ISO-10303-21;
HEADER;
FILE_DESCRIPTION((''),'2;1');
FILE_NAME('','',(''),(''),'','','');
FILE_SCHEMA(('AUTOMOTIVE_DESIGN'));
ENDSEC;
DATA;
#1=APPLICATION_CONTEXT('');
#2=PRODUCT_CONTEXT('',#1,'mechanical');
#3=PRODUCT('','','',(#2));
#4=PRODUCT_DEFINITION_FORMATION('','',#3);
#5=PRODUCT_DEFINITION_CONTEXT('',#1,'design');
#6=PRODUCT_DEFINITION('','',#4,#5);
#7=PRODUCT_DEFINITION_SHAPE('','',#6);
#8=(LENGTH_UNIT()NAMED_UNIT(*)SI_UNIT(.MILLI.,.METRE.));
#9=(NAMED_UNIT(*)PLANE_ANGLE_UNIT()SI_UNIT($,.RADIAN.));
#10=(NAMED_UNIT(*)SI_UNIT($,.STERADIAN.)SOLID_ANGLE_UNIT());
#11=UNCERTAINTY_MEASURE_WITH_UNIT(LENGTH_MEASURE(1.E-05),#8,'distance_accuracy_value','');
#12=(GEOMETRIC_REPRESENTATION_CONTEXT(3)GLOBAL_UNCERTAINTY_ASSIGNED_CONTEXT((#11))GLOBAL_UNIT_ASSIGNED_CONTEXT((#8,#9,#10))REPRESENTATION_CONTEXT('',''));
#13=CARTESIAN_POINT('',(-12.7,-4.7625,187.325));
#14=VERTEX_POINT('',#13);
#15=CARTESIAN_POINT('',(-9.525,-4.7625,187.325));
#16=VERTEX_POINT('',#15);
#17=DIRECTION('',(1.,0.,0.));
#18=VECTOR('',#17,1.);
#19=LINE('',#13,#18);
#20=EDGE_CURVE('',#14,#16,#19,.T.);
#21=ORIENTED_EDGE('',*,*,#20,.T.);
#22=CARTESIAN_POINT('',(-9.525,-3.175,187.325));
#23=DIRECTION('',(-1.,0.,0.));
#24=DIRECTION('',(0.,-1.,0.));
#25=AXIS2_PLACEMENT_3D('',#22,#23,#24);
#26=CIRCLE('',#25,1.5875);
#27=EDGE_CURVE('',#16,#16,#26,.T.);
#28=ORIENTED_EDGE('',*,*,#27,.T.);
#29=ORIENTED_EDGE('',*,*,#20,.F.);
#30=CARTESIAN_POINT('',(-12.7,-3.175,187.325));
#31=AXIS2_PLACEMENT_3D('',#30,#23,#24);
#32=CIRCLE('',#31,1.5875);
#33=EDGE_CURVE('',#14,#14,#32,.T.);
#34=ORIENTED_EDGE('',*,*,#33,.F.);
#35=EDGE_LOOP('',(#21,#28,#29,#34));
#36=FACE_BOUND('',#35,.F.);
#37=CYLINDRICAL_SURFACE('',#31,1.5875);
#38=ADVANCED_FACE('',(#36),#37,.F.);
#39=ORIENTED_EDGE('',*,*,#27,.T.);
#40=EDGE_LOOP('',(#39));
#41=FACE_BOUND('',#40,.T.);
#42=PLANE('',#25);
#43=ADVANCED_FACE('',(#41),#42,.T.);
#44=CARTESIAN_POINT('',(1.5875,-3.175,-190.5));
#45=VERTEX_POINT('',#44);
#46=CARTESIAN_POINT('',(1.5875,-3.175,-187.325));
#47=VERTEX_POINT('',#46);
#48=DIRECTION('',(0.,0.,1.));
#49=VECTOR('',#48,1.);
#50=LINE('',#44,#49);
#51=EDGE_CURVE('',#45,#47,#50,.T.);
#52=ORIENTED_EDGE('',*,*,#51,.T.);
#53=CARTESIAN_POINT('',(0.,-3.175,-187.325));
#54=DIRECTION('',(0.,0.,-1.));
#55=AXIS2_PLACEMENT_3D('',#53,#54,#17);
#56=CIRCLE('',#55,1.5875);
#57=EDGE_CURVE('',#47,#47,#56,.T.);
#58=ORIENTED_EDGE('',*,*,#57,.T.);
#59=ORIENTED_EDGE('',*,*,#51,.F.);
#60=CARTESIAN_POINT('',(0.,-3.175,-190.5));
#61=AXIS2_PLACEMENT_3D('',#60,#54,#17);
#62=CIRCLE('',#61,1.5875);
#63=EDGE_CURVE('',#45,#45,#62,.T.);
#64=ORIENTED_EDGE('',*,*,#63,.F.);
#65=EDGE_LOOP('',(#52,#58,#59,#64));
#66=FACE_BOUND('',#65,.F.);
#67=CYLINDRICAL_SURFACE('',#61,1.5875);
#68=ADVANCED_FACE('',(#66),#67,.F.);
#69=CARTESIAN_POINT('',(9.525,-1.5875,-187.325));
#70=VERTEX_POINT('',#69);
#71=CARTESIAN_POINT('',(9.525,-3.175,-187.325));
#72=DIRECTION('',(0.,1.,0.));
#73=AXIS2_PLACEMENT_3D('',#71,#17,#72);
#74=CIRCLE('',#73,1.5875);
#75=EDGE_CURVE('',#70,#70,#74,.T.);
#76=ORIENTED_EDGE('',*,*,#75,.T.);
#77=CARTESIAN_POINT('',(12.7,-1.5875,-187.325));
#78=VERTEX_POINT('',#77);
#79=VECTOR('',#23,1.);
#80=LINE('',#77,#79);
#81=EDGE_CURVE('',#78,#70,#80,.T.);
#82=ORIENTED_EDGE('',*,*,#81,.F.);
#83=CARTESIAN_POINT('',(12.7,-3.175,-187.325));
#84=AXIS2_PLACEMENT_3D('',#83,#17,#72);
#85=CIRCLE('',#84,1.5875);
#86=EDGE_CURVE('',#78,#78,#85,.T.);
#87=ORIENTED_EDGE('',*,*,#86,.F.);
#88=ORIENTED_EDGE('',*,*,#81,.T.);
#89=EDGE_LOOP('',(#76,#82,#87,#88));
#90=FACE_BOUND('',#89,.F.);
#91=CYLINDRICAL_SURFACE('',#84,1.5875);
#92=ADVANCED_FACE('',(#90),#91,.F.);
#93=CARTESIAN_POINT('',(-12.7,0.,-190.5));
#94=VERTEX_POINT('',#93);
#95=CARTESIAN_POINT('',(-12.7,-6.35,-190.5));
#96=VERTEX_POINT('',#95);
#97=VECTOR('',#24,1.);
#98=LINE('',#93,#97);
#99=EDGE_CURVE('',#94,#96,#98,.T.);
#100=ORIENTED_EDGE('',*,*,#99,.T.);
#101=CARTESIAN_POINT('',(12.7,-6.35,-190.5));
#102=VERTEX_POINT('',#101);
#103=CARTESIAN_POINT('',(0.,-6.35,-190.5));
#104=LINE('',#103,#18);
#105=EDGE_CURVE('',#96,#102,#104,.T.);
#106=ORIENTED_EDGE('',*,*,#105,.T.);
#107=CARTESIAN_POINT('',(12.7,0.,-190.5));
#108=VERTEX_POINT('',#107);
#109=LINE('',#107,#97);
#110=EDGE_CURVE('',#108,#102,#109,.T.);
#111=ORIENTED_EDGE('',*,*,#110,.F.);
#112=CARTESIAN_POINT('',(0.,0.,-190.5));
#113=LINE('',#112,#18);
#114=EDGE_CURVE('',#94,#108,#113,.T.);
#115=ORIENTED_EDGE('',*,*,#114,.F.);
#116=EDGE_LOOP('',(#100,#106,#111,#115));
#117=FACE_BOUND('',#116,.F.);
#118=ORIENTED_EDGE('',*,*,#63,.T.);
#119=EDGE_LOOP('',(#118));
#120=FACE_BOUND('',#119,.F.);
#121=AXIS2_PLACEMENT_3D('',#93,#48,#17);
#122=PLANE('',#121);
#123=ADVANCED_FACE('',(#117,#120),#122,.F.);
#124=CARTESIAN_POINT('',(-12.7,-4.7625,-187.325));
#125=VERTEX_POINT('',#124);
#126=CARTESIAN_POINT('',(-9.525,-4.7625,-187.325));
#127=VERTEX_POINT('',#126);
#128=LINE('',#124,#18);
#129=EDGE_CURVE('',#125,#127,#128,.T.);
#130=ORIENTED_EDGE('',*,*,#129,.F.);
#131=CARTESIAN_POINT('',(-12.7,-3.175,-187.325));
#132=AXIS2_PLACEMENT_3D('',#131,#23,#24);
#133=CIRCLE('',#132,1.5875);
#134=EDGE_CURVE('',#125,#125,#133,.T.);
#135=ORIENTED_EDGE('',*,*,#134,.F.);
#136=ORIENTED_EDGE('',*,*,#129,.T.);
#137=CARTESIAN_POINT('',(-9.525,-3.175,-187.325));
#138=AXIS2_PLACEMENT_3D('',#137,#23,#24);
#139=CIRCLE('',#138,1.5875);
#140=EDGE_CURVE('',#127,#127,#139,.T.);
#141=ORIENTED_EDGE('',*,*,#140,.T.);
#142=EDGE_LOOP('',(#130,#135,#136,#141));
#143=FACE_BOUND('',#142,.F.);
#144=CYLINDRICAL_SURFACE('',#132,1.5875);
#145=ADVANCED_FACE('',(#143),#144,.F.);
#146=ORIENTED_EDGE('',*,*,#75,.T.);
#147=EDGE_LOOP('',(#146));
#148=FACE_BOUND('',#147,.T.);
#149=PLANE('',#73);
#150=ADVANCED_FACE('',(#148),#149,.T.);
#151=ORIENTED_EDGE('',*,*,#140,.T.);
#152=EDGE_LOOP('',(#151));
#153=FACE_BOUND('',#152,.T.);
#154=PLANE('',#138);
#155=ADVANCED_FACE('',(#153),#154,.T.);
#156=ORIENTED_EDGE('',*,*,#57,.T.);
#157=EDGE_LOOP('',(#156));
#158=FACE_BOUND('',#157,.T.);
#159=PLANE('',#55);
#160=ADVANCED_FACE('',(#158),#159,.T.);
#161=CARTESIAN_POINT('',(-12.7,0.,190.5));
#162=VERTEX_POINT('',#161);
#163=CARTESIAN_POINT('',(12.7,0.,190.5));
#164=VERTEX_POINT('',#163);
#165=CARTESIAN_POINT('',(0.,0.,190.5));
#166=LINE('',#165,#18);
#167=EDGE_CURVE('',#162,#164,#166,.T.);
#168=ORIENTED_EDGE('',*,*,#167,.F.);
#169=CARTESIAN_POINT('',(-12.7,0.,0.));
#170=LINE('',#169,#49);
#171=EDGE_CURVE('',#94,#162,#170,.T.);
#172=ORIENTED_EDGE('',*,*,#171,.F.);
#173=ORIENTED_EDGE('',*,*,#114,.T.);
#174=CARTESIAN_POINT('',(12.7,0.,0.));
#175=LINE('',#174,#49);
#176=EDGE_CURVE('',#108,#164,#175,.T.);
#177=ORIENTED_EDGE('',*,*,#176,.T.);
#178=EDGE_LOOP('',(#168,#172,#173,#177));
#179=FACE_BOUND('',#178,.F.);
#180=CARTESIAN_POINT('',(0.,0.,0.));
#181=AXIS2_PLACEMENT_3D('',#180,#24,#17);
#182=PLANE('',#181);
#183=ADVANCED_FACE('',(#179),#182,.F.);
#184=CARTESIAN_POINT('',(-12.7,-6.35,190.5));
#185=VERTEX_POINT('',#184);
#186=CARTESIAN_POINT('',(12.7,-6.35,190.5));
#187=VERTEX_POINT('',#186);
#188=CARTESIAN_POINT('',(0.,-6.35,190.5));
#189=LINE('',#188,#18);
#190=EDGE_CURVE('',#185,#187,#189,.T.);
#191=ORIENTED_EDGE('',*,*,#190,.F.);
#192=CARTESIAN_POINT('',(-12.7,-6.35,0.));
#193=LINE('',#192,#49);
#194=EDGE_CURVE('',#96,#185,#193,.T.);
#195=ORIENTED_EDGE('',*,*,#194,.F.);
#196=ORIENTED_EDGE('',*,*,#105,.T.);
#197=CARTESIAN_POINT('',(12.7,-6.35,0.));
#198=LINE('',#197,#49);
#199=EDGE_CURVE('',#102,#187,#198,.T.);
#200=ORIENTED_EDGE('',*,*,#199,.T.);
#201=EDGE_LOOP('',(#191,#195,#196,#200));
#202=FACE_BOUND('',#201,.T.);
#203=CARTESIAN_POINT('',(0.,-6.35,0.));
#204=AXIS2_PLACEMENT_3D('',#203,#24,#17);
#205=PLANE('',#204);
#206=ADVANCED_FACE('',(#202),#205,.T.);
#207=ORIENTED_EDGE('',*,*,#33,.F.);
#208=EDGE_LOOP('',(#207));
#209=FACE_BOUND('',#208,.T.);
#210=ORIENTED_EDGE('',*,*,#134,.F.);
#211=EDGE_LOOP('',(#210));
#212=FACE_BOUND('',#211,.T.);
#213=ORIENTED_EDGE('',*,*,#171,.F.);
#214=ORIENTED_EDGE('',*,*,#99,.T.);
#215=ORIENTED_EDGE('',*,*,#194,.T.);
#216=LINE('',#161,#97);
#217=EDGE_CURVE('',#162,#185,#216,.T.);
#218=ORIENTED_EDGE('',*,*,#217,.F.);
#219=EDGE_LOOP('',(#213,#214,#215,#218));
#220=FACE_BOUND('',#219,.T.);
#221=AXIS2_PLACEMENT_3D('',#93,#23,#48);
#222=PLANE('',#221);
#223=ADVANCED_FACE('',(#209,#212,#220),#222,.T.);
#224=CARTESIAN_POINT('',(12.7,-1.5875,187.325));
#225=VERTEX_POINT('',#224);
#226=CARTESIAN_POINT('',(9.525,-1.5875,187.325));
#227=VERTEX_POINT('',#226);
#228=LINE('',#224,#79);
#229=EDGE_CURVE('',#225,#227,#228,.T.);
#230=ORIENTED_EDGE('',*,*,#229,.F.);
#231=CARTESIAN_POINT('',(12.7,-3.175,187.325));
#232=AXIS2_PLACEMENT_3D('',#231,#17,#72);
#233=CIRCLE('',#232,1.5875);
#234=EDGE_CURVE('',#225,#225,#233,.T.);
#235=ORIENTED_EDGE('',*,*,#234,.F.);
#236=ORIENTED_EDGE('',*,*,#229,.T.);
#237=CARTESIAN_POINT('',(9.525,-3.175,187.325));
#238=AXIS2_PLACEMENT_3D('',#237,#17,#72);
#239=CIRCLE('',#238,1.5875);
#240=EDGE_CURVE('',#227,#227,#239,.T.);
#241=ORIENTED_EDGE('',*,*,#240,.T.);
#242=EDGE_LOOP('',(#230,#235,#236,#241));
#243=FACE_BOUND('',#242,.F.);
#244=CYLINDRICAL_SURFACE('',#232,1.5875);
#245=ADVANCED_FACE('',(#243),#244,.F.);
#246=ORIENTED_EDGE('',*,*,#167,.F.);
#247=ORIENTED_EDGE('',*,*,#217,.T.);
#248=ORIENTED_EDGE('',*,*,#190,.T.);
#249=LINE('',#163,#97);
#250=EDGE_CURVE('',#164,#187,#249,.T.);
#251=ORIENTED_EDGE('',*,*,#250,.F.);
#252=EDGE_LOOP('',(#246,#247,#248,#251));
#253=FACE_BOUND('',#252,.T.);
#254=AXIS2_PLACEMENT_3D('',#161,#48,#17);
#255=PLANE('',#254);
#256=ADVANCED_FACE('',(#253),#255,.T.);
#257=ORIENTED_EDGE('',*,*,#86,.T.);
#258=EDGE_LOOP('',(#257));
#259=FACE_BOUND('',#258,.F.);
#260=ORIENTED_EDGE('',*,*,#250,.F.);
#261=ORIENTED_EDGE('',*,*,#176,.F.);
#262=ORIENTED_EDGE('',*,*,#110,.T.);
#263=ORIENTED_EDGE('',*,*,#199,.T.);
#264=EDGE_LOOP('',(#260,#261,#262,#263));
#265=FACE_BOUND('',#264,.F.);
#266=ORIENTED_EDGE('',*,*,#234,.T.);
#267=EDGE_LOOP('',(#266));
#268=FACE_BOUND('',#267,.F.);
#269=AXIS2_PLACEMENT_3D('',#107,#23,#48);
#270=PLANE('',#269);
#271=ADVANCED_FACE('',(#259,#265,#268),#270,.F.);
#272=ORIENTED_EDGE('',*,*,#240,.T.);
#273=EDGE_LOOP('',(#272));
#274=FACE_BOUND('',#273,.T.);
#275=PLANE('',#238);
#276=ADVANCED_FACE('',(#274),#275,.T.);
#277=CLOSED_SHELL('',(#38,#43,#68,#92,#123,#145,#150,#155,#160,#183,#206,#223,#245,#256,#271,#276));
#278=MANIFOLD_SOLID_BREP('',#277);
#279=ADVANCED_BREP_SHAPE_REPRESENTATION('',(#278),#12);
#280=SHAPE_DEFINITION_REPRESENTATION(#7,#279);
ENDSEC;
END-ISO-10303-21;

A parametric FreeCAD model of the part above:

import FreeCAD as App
import Part
import Sketcher
from FreeCAD import Vector
Q = App.Units.Quantity

doc = App.newDocument("Part")
params = doc.addObject("Spreadsheet::Sheet", "Params")
for row, (alias, value) in enumerate([
    ("sketch1_width", "1 in"),
    ("sketch1_height", "15 in"),
    ("pad1_length", "0.25 in"),
    ("sketch2_diameter", "0.125 in"),
    ("pocket1_length", "0.125 in"),
    ("sketch3_diameter", "0.125 in"),
    ("pocket2_length", "0.125 in"),
    ("sketch4_diameter", "0.125 in"),
    ("pocket3_length", "0.125 in"),
], start=1):
    params.set(f"A{row}", alias)
    params.set(f"B{row}", "=" + value)
    params.setAlias(f"B{row}", alias)

body = doc.addObject("PartDesign::Body", "Body")

# Sketch on XZ plane
sketch1 = body.newObject("Sketcher::SketchObject", "Sketch")
sketch1.AttachmentSupport = (doc.getObject("XZ_Plane"), [""])
sketch1.MapMode = "FlatFace"
sketch1.addGeometry([
    Part.LineSegment(Vector(-13, 190, 0), Vector(-13, -190, 0)),
    Part.LineSegment(Vector(-13, -190, 0), Vector(13, -190, 0)),
    Part.LineSegment(Vector(13, -190, 0), Vector(13, 190, 0)),
    Part.LineSegment(Vector(13, 190, 0), Vector(-13, 190, 0)),
], False)
sketch1.addConstraint([
    Sketcher.Constraint("Coincident", 0, 2, 1, 1),
    Sketcher.Constraint("Coincident", 1, 2, 2, 1),
    Sketcher.Constraint("Coincident", 2, 2, 3, 1),
    Sketcher.Constraint("Coincident", 3, 2, 0, 1),
    Sketcher.Constraint("Vertical", 0),
    Sketcher.Constraint("Horizontal", 1),
    Sketcher.Constraint("Vertical", 2),
    Sketcher.Constraint("Horizontal", 3),
    Sketcher.Constraint("Symmetric", 0, 2, 2, 2, -1, 1),
    Sketcher.Constraint("DistanceX", 1, 1, 1, 2, Q("1 in")),
    Sketcher.Constraint("DistanceY", 0, 2, 0, 1, Q("15 in")),
])
sketch1.setExpression("Constraints[9]", "Params.sketch1_width")
sketch1.setExpression("Constraints[10]", "Params.sketch1_height")
pad1 = body.newObject("PartDesign::Pad", "Pad")
pad1.Profile = sketch1
pad1.setExpression("Length", "Params.pad1_length")

# Sketch on YZ plane
sketch2 = body.newObject("Sketcher::SketchObject", "Sketch001")
sketch2.AttachmentSupport = (doc.getObject("YZ_Plane"), [""])
sketch2.MapMode = "FlatFace"
sketch2.AttachmentOffset = App.Placement(Vector(0, 0, 0.5 * 25.4), App.Rotation())
sketch2.addGeometry([
    Part.Circle(Vector(-3.2, 187.3, 0), Vector(0, 0, 1), 1.6),
    Part.Circle(Vector(-3.2, -187.3, 0), Vector(0, 0, 1), 1.6),
], False)
sketch2.addConstraint([
    Sketcher.Constraint("Equal", 0, 1),
    Sketcher.Constraint("Symmetric", 0, 3, 1, 3, -1),
    Sketcher.Constraint("Diameter", 0, Q("0.125 in")),
    Sketcher.Constraint("DistanceY", 1, 3, 0, 3, Q("14.75 in")),
    Sketcher.Constraint("DistanceX", 0, 3, -1, 1, Q("0.125 in")),
])
sketch2.setExpression("Constraints[2]", "Params.sketch2_diameter")
pocket1 = body.newObject("PartDesign::Pocket", "Pocket")
pocket1.Profile = sketch2
pocket1.setExpression("Length", "Params.pocket1_length")

# Sketch on YZ plane
sketch3 = body.newObject("Sketcher::SketchObject", "Sketch002")
sketch3.AttachmentSupport = (doc.getObject("YZ_Plane"), [""])
sketch3.MapMode = "FlatFace"
sketch3.AttachmentOffset = App.Placement(Vector(0, 0, -0.5 * 25.4), App.Rotation())
sketch3.addGeometry([
    Part.Circle(Vector(-3.2, 187.3, 0), Vector(0, 0, 1), 1.6),
    Part.Circle(Vector(-3.2, -187.3, 0), Vector(0, 0, 1), 1.6),
], False)
sketch3.addConstraint([
    Sketcher.Constraint("Equal", 0, 1),
    Sketcher.Constraint("Symmetric", 0, 3, 1, 3, -1),
    Sketcher.Constraint("Diameter", 0, Q("0.125 in")),
    Sketcher.Constraint("DistanceY", 1, 3, 0, 3, Q("14.75 in")),
    Sketcher.Constraint("DistanceX", 0, 3, -1, 1, Q("0.125 in")),
])
sketch3.setExpression("Constraints[2]", "Params.sketch3_diameter")
pocket2 = body.newObject("PartDesign::Pocket", "Pocket001")
pocket2.Profile = sketch3
pocket2.setExpression("Length", "Params.pocket2_length")
pocket2.Reversed = True

# Sketch on XY plane
sketch4 = body.newObject("Sketcher::SketchObject", "Sketch003")
sketch4.AttachmentSupport = (doc.getObject("XY_Plane"), [""])
sketch4.MapMode = "FlatFace"
sketch4.AttachmentOffset = App.Placement(Vector(0, 0, -7.5 * 25.4), App.Rotation())
sketch4.addGeometry(Part.Circle(Vector(0, -3.2, 0), Vector(0, 0, 1), 1.6), False)
sketch4.addConstraint([
    Sketcher.Constraint("PointOnObject", 0, 3, -2),
    Sketcher.Constraint("Diameter", 0, Q("0.125 in")),
    Sketcher.Constraint("DistanceY", 0, 3, -1, 1, Q("0.125 in")),
])
sketch4.setExpression("Constraints[1]", "Params.sketch4_diameter")
pocket3 = body.newObject("PartDesign::Pocket", "Pocket002")
pocket3.Profile = sketch4
pocket3.setExpression("Length", "Params.pocket3_length")
pocket3.Reversed = True

doc.recompute()
